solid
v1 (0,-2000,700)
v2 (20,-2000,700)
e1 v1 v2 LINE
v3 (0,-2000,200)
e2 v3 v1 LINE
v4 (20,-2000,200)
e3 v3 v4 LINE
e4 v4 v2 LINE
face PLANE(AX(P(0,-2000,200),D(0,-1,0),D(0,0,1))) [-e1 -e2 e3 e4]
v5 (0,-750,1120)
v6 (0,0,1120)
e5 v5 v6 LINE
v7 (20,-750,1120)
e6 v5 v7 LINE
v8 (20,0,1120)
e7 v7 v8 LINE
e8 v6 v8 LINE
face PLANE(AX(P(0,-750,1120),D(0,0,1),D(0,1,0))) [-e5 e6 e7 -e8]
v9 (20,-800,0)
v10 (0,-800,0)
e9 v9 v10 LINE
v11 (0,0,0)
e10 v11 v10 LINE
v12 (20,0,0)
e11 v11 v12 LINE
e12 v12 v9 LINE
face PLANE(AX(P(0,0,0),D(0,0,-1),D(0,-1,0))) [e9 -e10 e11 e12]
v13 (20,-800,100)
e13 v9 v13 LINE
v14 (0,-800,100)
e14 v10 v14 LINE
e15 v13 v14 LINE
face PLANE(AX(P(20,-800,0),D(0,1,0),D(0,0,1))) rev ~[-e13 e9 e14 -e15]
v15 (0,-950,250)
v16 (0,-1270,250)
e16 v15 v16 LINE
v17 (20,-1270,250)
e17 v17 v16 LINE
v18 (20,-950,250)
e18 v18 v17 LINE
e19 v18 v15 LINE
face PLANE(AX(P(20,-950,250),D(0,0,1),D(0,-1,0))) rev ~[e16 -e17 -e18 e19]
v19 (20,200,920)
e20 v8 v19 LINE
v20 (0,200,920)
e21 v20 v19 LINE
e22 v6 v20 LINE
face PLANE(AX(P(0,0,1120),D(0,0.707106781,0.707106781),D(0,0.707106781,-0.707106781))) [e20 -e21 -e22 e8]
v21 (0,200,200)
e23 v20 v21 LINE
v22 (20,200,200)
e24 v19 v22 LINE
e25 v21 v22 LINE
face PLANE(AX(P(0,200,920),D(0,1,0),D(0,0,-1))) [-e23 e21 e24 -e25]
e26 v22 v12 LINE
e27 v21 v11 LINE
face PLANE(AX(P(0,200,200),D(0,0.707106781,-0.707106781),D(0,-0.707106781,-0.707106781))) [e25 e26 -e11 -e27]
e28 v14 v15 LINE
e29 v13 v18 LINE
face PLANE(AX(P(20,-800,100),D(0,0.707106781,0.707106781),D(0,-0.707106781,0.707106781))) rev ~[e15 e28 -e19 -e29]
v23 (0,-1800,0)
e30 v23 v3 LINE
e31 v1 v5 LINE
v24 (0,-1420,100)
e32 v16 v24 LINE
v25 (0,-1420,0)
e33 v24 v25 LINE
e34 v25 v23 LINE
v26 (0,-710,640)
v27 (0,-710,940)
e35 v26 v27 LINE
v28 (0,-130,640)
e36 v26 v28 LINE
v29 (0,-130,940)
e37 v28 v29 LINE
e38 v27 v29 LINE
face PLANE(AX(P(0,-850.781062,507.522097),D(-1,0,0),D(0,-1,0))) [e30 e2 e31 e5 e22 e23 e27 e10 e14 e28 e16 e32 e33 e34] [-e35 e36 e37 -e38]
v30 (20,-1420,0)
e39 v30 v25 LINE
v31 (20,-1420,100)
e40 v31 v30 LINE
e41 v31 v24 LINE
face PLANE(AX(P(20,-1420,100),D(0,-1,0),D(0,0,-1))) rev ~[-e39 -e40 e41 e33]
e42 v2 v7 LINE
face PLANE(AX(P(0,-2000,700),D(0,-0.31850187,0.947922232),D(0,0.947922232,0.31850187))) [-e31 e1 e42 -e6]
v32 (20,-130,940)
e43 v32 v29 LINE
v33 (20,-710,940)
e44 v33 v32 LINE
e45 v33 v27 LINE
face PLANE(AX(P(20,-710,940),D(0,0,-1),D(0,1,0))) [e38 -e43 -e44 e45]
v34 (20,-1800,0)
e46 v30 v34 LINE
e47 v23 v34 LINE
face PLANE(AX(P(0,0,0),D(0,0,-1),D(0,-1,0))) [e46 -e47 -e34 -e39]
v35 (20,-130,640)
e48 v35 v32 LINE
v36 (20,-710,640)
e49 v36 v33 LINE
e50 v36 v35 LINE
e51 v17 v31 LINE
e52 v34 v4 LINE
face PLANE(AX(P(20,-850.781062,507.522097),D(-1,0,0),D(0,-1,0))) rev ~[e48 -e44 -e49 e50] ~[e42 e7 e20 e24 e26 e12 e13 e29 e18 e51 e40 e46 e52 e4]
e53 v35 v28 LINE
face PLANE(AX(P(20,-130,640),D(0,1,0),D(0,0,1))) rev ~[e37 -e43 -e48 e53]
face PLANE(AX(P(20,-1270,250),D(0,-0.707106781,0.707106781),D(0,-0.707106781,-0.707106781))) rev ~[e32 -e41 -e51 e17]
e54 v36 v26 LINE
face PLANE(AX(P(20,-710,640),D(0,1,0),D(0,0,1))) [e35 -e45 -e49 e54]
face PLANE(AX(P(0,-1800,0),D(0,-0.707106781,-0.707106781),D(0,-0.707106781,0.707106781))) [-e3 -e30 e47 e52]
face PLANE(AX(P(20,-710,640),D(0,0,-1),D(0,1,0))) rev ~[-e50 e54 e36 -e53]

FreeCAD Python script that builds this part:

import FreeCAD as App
import Part
import Sketcher

V = App.Vector
Q = App.Units.Quantity

doc = App.newDocument("Part")
body = doc.addObject("PartDesign::Body", "Body")

# Sketch on YZ plane
sketch1 = doc.addObject("Sketcher::SketchObject", "Sketch")
body.addObject(sketch1)
sketch1.AttachmentSupport = (doc.YZ_Plane, [""])
sketch1.MapMode = "FlatFace"
sketch1.addGeometry([
    Part.LineSegment(V(-2000, 700, 0), V(-2000, 200, 0)),  # 0
    Part.LineSegment(V(-2000, 200, 0), V(-1800, 0, 0)),  # 1
    Part.LineSegment(V(-1800, 0, 0), V(0, 0, 0)),  # 2
    Part.LineSegment(V(0, 0, 0), V(200, 200, 0)),  # 3
    Part.LineSegment(V(200, 200, 0), V(200, 920, 0)),  # 4
    Part.LineSegment(V(200, 920, 0), V(0, 1120, 0)),  # 5
    Part.LineSegment(V(0, 1120, 0), V(-750, 1120, 0)),  # 6
    Part.LineSegment(V(-750, 1120, 0), V(-2000, 700, 0)),  # 7
], False)
sketch1.addConstraint([
    Sketcher.Constraint("Coincident", 0, 2, 1, 1),
    Sketcher.Constraint("Coincident", 1, 2, 2, 1),
    Sketcher.Constraint("Coincident", 2, 2, 3, 1),
    Sketcher.Constraint("Coincident", 3, 2, 4, 1),
    Sketcher.Constraint("Coincident", 4, 2, 5, 1),
    Sketcher.Constraint("Coincident", 5, 2, 6, 1),
    Sketcher.Constraint("Coincident", 6, 2, 7, 1),
    Sketcher.Constraint("Coincident", 7, 2, 0, 1),
    Sketcher.Constraint("Vertical", 0),
    Sketcher.Constraint("Horizontal", 2),
    Sketcher.Constraint("Vertical", 4),
    Sketcher.Constraint("Horizontal", 6),
    Sketcher.Constraint("Coincident", 2, 2, -1, 1),
    Sketcher.Constraint("PointOnObject", 5, 2, -2),
    Sketcher.Constraint("Perpendicular", 1, 3),
    Sketcher.Constraint("Perpendicular", 3, 5),
    Sketcher.Constraint("Horizontal", 0, 2, 3, 2),
    Sketcher.Constraint("Equal", 1, 3),
    Sketcher.Constraint("DistanceX", 2, 1, 2, 2, Q("1800 mm")),
    Sketcher.Constraint("DistanceX", 6, 2, 6, 1, Q("750 mm")),
    Sketcher.Constraint("DistanceY", 0, 2, 0, 1, Q("500 mm")),
    Sketcher.Constraint("DistanceY", 4, 1, 4, 2, Q("720 mm")),
    Sketcher.Constraint("DistanceX", 0, 2, -1, 1, Q("2000 mm")),
])
pad1 = doc.addObject("PartDesign::Pad", "Pad")
body.addObject(pad1)
pad1.Profile = sketch1
pad1.Length = 20

# Sketch on YZ plane
sketch2 = doc.addObject("Sketcher::SketchObject", "Sketch001")
body.addObject(sketch2)
sketch2.AttachmentSupport = (doc.YZ_Plane, [""])
sketch2.MapMode = "FlatFace"
sketch2.AttachmentOffset = App.Placement(V(0, 0, 20), App.Rotation())
sketch2.addGeometry([
    Part.LineSegment(V(-950, 250, 0), V(-1270, 250, 0)),  # 0
    Part.LineSegment(V(-1270, 250, 0), V(-1420, 100, 0)),  # 1
    Part.LineSegment(V(-1420, 100, 0), V(-1420, 0, 0)),  # 2
    Part.LineSegment(V(-1420, 0, 0), V(-800, 0, 0)),  # 3
    Part.LineSegment(V(-800, 0, 0), V(-800, 100, 0)),  # 4
    Part.LineSegment(V(-800, 100, 0), V(-950, 250, 0)),  # 5
], False)
sketch2.addConstraint([
    Sketcher.Constraint("Coincident", 0, 2, 1, 1),
    Sketcher.Constraint("Coincident", 1, 2, 2, 1),
    Sketcher.Constraint("Coincident", 2, 2, 3, 1),
    Sketcher.Constraint("Coincident", 3, 2, 4, 1),
    Sketcher.Constraint("Coincident", 4, 2, 5, 1),
    Sketcher.Constraint("Coincident", 5, 2, 0, 1),
    Sketcher.Constraint("Horizontal", 0),
    Sketcher.Constraint("Vertical", 2),
    Sketcher.Constraint("Horizontal", 3),
    Sketcher.Constraint("Vertical", 4),
    Sketcher.Constraint("PointOnObject", 2, 2, -1),
    Sketcher.Constraint("Perpendicular", 1, 5),
    Sketcher.Constraint("Horizontal", 1, 2, 4, 2),
    Sketcher.Constraint("Equal", 1, 5),
    Sketcher.Constraint("DistanceX", 0, 2, 0, 1, Q("320 mm")),
    Sketcher.Constraint("DistanceX", 3, 1, 3, 2, Q("620 mm")),
    Sketcher.Constraint("DistanceY", 2, 2, 2, 1, Q("100 mm")),
    Sketcher.Constraint("DistanceX", 0, 2, -1, 1, Q("1270 mm")),
])
pocket1 = doc.addObject("PartDesign::Pocket", "Pocket")
body.addObject(pocket1)
pocket1.Profile = sketch2
pocket1.Length = 20

# Sketch on YZ plane
sketch3 = doc.addObject("Sketcher::SketchObject", "Sketch002")
body.addObject(sketch3)
sketch3.AttachmentSupport = (doc.YZ_Plane, [""])
sketch3.MapMode = "FlatFace"
sketch3.AttachmentOffset = App.Placement(V(0, 0, 20), App.Rotation())
sketch3.addGeometry([
    Part.LineSegment(V(-710, 940, 0), V(-710, 640, 0)),
    Part.LineSegment(V(-710, 640, 0), V(-130, 640, 0)),
    Part.LineSegment(V(-130, 640, 0), V(-130, 940, 0)),
    Part.LineSegment(V(-130, 940, 0), V(-710, 940, 0)),
], False)
sketch3.addConstraint([
    Sketcher.Constraint("Coincident", 0, 2, 1, 1),
    Sketcher.Constraint("Coincident", 1, 2, 2, 1),
    Sketcher.Constraint("Coincident", 2, 2, 3, 1),
    Sketcher.Constraint("Coincident", 3, 2, 0, 1),
    Sketcher.Constraint("Vertical", 0),
    Sketcher.Constraint("Horizontal", 1),
    Sketcher.Constraint("Vertical", 2),
    Sketcher.Constraint("Horizontal", 3),
    Sketcher.Constraint("DistanceX", 1, 1, 1, 2, Q("580 mm")),
    Sketcher.Constraint("DistanceY", 0, 2, 0, 1, Q("300 mm")),
    Sketcher.Constraint("DistanceX", 0, 2, -1, 1, Q("710 mm")),
    Sketcher.Constraint("DistanceY", -1, 1, 0, 2, Q("640 mm")),
])
pocket2 = doc.addObject("PartDesign::Pocket", "Pocket001")
body.addObject(pocket2)
pocket2.Profile = sketch3
pocket2.Length = 20

doc.recompute()
